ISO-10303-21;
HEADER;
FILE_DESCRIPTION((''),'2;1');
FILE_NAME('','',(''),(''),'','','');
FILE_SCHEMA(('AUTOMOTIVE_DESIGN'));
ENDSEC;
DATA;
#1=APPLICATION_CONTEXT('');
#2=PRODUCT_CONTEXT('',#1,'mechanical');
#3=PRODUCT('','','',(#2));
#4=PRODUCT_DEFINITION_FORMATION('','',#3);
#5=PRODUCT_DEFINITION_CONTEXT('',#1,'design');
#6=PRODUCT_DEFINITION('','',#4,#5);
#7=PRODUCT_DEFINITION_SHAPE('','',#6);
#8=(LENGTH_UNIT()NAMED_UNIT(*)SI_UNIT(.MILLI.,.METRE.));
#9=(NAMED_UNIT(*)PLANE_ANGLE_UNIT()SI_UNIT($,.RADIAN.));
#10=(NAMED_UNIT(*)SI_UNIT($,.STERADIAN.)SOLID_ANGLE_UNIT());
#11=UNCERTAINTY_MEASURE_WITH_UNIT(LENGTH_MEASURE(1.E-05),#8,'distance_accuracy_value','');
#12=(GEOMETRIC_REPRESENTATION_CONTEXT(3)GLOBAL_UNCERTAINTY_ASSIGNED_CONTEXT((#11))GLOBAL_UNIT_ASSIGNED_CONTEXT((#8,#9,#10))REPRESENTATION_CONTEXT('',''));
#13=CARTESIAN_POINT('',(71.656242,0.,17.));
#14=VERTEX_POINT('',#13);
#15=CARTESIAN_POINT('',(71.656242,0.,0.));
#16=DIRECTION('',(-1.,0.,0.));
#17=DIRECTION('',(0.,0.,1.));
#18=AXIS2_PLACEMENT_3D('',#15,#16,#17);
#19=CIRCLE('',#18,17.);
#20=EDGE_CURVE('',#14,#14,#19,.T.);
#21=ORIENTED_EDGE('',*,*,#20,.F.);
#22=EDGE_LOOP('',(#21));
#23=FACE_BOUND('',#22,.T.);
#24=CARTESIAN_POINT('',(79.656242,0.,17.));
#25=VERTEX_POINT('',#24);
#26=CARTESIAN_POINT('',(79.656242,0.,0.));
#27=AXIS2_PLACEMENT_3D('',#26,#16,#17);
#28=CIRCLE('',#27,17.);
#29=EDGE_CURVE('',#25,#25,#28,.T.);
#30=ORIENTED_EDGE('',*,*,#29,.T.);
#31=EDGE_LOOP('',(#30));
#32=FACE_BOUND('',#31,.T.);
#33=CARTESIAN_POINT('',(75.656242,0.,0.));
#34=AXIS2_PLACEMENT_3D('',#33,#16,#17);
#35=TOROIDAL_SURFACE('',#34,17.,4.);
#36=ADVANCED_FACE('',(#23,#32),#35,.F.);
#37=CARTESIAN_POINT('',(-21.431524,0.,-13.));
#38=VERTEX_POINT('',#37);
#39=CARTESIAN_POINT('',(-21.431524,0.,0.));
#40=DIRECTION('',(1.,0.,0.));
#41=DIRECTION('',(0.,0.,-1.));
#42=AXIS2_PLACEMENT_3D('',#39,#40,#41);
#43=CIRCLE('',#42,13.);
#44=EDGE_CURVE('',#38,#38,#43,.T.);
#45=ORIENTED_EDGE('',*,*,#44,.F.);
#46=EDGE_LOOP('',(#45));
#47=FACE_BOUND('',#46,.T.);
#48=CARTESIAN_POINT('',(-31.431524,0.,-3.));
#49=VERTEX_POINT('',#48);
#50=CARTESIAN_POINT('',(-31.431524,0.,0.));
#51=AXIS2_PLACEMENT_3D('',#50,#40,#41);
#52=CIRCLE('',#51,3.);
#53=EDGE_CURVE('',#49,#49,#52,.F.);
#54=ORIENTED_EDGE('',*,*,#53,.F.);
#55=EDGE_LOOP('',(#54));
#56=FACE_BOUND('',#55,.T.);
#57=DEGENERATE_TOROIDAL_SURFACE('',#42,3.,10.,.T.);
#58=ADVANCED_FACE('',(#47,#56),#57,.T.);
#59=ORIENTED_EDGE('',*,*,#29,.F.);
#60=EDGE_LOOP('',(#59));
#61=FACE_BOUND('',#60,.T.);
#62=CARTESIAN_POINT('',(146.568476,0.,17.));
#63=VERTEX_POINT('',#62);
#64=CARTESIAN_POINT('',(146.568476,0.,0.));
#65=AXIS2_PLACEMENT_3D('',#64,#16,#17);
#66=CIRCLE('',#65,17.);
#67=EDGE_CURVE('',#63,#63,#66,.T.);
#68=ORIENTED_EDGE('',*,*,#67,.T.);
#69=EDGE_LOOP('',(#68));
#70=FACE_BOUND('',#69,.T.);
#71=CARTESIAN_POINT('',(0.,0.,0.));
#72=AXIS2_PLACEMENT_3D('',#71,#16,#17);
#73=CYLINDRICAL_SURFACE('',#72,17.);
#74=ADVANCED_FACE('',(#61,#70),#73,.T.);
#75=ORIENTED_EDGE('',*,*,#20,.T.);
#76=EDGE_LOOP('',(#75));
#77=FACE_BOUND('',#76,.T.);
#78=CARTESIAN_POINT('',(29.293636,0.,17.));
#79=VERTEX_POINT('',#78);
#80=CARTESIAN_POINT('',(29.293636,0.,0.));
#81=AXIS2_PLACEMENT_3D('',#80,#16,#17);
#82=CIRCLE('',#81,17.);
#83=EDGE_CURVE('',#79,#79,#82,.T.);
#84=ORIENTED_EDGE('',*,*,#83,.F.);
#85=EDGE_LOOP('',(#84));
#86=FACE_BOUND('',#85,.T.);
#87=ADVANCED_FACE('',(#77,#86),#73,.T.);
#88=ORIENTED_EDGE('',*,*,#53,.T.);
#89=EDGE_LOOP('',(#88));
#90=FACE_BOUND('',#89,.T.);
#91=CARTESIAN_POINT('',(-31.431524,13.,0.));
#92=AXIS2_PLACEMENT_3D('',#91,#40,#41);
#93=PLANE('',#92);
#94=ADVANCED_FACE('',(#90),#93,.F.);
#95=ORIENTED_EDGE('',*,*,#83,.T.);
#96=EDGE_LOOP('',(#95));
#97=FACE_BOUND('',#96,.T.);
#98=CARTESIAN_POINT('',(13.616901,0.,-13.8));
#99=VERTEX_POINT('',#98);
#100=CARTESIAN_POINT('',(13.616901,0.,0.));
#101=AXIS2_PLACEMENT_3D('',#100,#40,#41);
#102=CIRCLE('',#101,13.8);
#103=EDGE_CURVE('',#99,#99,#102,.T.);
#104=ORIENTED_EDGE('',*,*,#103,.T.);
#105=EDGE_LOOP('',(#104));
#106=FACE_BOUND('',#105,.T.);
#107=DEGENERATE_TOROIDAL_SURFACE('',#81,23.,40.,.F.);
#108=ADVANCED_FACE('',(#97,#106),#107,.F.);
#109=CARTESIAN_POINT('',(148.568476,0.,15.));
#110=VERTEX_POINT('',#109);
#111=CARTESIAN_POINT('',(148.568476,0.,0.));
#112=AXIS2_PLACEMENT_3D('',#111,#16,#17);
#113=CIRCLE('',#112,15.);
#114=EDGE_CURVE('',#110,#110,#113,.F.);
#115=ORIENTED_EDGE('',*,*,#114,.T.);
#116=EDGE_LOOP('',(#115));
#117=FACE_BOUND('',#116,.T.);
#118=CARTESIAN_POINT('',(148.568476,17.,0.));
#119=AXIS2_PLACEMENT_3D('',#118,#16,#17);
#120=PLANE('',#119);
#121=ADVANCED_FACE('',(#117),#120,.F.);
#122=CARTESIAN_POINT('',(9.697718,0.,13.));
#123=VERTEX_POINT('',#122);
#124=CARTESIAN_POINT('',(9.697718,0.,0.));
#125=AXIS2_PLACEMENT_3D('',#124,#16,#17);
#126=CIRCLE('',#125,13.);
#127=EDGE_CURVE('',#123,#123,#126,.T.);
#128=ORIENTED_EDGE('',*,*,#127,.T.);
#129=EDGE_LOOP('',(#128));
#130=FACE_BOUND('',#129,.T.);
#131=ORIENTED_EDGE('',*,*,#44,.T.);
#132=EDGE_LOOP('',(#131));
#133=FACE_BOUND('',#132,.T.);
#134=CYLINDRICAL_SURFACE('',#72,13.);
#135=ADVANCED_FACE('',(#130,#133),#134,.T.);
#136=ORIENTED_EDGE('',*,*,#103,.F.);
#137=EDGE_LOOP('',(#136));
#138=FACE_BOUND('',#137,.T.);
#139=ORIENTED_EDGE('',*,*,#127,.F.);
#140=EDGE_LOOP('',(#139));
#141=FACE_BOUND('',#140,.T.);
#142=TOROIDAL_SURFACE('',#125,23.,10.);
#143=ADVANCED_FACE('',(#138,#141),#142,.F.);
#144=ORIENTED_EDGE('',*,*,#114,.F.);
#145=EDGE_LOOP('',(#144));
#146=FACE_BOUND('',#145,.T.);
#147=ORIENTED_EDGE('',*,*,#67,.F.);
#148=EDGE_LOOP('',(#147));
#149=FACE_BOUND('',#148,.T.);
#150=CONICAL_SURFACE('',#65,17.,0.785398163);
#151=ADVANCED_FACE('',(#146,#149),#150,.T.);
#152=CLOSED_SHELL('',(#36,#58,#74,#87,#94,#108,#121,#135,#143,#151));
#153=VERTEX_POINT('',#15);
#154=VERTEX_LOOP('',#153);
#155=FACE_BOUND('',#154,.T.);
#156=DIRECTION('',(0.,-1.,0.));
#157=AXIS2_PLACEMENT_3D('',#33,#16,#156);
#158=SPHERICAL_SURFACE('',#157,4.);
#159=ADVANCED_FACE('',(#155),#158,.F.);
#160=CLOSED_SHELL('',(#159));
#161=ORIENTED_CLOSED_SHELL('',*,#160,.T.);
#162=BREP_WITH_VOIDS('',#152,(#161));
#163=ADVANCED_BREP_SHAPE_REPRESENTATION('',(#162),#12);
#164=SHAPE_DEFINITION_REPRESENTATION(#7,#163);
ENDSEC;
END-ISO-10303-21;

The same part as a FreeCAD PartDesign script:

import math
import FreeCAD as App
import Part
import Sketcher

V = App.Vector


def edges_at(feature, points):
    """Names of the edges that pass closest to the given points."""
    edges = feature.Shape.Edges
    near = lambda p: min(range(len(edges)), key=lambda i: edges[i].distToShape(Part.Vertex(*p))[0])
    return sorted({f"Edge{near(p) + 1}" for p in points})

doc = App.newDocument("Part")
body = doc.addObject("PartDesign::Body", "Body")

sketch1 = body.newObject("Sketcher::SketchObject", "Sketch")
sketch1.AttachmentSupport = (doc.getObject("XY_Plane"), [""])
sketch1.MapMode = "FlatFace"
sketch1.addGeometry([
    Part.ArcOfCircle(Part.Circle(V(75.656242, 0, 0), V(0, 0, 1), 4), math.radians(0), math.radians(180)),
    Part.LineSegment(V(79.656242, 0, 0), V(148.568476, 0, 0)),
    Part.LineSegment(V(148.568476, 0, 0), V(148.568476, 17, 0)),
    Part.LineSegment(V(148.568476, 17, 0), V(79.656242, 17, 0)),
    Part.ArcOfCircle(Part.Circle(V(75.656242, 17, 0), V(0, 0, 1), 4), math.radians(180), math.radians(360)),
    Part.LineSegment(V(71.656242, 17, 0), V(29.293636, 17, 0)),
    Part.ArcOfCircle(Part.Circle(V(29.293636, -23, 0), V(0, 0, 1), 40), math.radians(90), math.radians(115.841933)),
    Part.LineSegment(V(11.85804, 13, 0), V(-31.431524, 13, 0)),
    Part.LineSegment(V(-31.431524, 13, 0), V(-31.431524, 0, 0)),
    Part.LineSegment(V(-31.431524, 0, 0), V(71.656242, 0, 0)),
], False)
sketch1.addConstraint([
    Sketcher.Constraint("Coincident", 0, 1, 1, 1),
    Sketcher.Constraint("Coincident", 1, 2, 2, 1),
    Sketcher.Constraint("Coincident", 2, 2, 3, 1),
    Sketcher.Constraint("Coincident", 3, 2, 4, 2),
    Sketcher.Constraint("Coincident", 4, 1, 5, 1),
    Sketcher.Constraint("Tangent", 5, 2, 6, 1),
    Sketcher.Constraint("Coincident", 6, 2, 7, 1),
    Sketcher.Constraint("Coincident", 7, 2, 8, 1),
    Sketcher.Constraint("Coincident", 8, 2, 9, 1),
    Sketcher.Constraint("Coincident", 9, 2, 0, 2),
    Sketcher.Constraint("Horizontal", 1),
    Sketcher.Constraint("Vertical", 2),
    Sketcher.Constraint("Horizontal", 3),
    Sketcher.Constraint("Horizontal", 5),
    Sketcher.Constraint("Horizontal", 7),
    Sketcher.Constraint("Vertical", 8),
    Sketcher.Constraint("Horizontal", 9),
    Sketcher.Constraint("Equal", 0, 4),
    Sketcher.Constraint("PointOnObject", 0, 3, -1),
    Sketcher.Constraint("PointOnObject", 0, 1, -1),
    Sketcher.Constraint("PointOnObject", 8, 2, -1),
    Sketcher.Constraint("Horizontal", 4, 3, 2, 2),
    Sketcher.Constraint("Horizontal", 3, 2, 4, 1),
    Sketcher.Constraint("Vertical", 0, 3, 4, 3),
    Sketcher.Constraint("Radius", 0, 4.0),
    Sketcher.Constraint("Radius", 6, 40.0),
    Sketcher.Constraint("DistanceY", 2, 1, 2, 2, 17.0),
    Sketcher.Constraint("DistanceY", 8, 2, 8, 1, 13.0),
    Sketcher.Constraint("DistanceX", 1, 1, 1, 2, 68.912233),
    Sketcher.Constraint("DistanceX", 5, 2, 5, 1, 42.362607),
    Sketcher.Constraint("DistanceX", 7, 2, 7, 1, 43.289564),
    Sketcher.Constraint("DistanceX", -1, 1, 6, 2, 11.85804),
])
revolution = body.newObject("PartDesign::Revolution", "Revolution")
revolution.Profile = sketch1
revolution.ReferenceAxis = (sketch1, ["H_Axis"])
revolution.Angle = 360
doc.recompute()

fillet = body.newObject("PartDesign::Fillet", "Fillet")
fillet.Base = (revolution, edges_at(revolution, [(11.858, 0, -13), (-31.432, 0, -13)]))
fillet.Radius = 10
doc.recompute()

chamfer = body.newObject("PartDesign::Chamfer", "Chamfer")
chamfer.Base = (fillet, edges_at(fillet, [(148.568, 0, -17)]))
chamfer.Size = 2

doc.recompute()
